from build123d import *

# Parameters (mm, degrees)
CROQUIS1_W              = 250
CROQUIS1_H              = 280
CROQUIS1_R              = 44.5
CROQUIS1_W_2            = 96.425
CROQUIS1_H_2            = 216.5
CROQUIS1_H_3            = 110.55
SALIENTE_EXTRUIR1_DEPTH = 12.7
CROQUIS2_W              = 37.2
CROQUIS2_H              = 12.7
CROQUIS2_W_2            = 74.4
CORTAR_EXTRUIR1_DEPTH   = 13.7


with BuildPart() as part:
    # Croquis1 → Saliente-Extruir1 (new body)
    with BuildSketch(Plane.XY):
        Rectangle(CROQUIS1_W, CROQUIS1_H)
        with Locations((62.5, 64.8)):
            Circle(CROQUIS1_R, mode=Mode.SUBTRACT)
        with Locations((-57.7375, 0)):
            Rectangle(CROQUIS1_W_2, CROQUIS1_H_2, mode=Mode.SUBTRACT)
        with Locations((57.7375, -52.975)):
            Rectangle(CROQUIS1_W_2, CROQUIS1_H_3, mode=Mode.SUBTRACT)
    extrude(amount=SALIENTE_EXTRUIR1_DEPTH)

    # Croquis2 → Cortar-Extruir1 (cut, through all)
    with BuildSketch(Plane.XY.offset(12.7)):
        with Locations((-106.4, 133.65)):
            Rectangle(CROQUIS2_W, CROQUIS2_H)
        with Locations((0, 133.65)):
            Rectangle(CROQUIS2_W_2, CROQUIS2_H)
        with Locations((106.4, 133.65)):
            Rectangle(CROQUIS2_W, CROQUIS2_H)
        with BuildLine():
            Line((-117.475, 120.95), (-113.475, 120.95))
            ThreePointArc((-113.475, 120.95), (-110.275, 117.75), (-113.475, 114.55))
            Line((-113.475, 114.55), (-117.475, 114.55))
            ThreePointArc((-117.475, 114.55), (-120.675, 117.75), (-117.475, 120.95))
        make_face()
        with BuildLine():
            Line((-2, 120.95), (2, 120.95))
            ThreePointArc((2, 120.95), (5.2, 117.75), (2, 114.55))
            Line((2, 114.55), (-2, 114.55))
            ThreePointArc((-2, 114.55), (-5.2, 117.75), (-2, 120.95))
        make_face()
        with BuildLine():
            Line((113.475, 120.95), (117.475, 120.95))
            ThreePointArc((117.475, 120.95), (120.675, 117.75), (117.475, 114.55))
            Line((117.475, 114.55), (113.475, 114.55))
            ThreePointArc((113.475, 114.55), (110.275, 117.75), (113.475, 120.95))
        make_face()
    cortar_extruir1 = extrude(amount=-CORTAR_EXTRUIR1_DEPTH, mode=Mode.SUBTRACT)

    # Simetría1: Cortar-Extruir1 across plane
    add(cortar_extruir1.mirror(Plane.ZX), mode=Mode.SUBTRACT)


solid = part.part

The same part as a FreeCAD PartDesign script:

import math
import FreeCAD as App
import Part
import Sketcher
from FreeCAD import Vector


def add_polygon(sketch, points):
    """Adds a closed chain of lines whose ends are joined by coincident constraints."""
    first, n = sketch.GeometryCount, len(points)
    for a, b in zip(points, points[1:] + points[:1]):
        sketch.addGeometry(Part.LineSegment(App.Vector(*a, 0), App.Vector(*b, 0)), False)
    for i in range(n):
        sketch.addConstraint(Sketcher.Constraint("Coincident", first + i, 2, first + (i + 1) % n, 1))

doc = App.newDocument("Part")
params = doc.addObject("Spreadsheet::Sheet", "Params")
for row, (alias, value) in enumerate([
    ("sketch1_diameter", "89 mm"),
    ("sketch1_width", "250 mm"),
    ("sketch1_height", "280 mm"),
    ("sketch1_height2", "216.5 mm"),
    ("sketch1_height3", "110.55 mm"),
    ("pad1_length", "12.7 mm"),
    ("sketch2_radius", "3.2 mm"),
    ("sketch2_width", "4 mm"),
    ("sketch2_width2", "37.2 mm"),
    ("sketch2_width3", "74.4 mm"),
    ("sketch2_height", "12.7 mm"),
], start=1):
    params.set(f"A{row}", alias)
    params.set(f"B{row}", "=" + value)
    params.setAlias(f"B{row}", alias)

body = doc.addObject("PartDesign::Body", "Body")

sketch1 = body.newObject("Sketcher::SketchObject", "Sketch")
sketch1.AttachmentSupport = (doc.getObject("XY_Plane"), [""])
sketch1.MapMode = "FlatFace"
add_polygon(sketch1, [(-125, 140), (-125, -140), (125, -140), (125, 140)])
add_polygon(sketch1, [(-10, -108), (-106, -108), (-106, 108), (-10, 108)])
add_polygon(sketch1, [(106, -108), (10, -108), (10, 2), (106, 2)])
sketch1.addGeometry(Part.Circle(Vector(62, 65, 0), Vector(0, 0, 1), 44), False)
sketch1.addConstraint([
    Sketcher.Constraint("Vertical", 0),
    Sketcher.Constraint("Horizontal", 1),
    Sketcher.Constraint("Vertical", 2),
    Sketcher.Constraint("Horizontal", 3),
    Sketcher.Constraint("Horizontal", 4),
    Sketcher.Constraint("Vertical", 5),
    Sketcher.Constraint("Horizontal", 6),
    Sketcher.Constraint("Vertical", 7),
    Sketcher.Constraint("Horizontal", 8),
    Sketcher.Constraint("Vertical", 9),
    Sketcher.Constraint("Horizontal", 10),
    Sketcher.Constraint("Vertical", 11),
    Sketcher.Constraint("Symmetric", 0, 2, 2, 2, -1, 1),
    Sketcher.Constraint("Symmetric", 6, 2, 8, 2, -1, 1),
    Sketcher.Constraint("Symmetric", 4, 2, 11, 2, -2),
    Sketcher.Constraint("Diameter", 12, 89.0),
    Sketcher.Constraint("DistanceX", 1, 1, 1, 2, 250.0),
    Sketcher.Constraint("DistanceY", 0, 2, 0, 1, 280.0),
    Sketcher.Constraint("DistanceY", 5, 1, 5, 2, 216.5),
    Sketcher.Constraint("DistanceY", 9, 1, 9, 2, 110.55),
    Sketcher.Constraint("DistanceX", -1, 1, 12, 3, 62.5),
    Sketcher.Constraint("DistanceY", -1, 1, 12, 3, 64.8),
    Sketcher.Constraint("DistanceX", 4, 2, 4, 1, 96.425),
    Sketcher.Constraint("DistanceX", 4, 2, -1, 1, 105.95),
])
sketch1.setExpression("Constraints[27]", "Params.sketch1_diameter")
sketch1.setExpression("Constraints[28]", "Params.sketch1_width")
sketch1.setExpression("Constraints[29]", "Params.sketch1_height")
sketch1.setExpression("Constraints[30]", "Params.sketch1_height2")
sketch1.setExpression("Constraints[31]", "Params.sketch1_height3")
pad1 = body.newObject("PartDesign::Pad", "Pad")
pad1.Profile = sketch1
pad1.setExpression("Length", "Params.pad1_length")

sketch2 = body.newObject("Sketcher::SketchObject", "Sketch001")
sketch2.AttachmentSupport = (doc.getObject("XY_Plane"), [""])
sketch2.MapMode = "FlatFace"
sketch2.AttachmentOffset = App.Placement(Vector(0, 0, 12.7), App.Rotation())
add_polygon(sketch2, [(-125, 140), (-125, 127.3), (-87.8, 127.3), (-87.8, 140)])
add_polygon(sketch2, [(-37.2, 140), (-37.2, 127.3), (37.2, 127.3), (37.2, 140)])
add_polygon(sketch2, [(87.8, 140), (87.8, 127.3), (125, 127.3), (125, 140)])
sketch2.addGeometry(Part.LineSegment(Vector(-113.5, 121, 0), Vector(-117.5, 121, 0)), False)
sketch2.addGeometry(Part.ArcOfCircle(Part.Circle(Vector(-117.5, 117.8, 0), Vector(0, 0, 1), 3.2), math.radians(90), math.radians(270)), False)
sketch2.addGeometry(Part.LineSegment(Vector(-117.5, 114.5, 0), Vector(-113.5, 114.5, 0)), False)
sketch2.addGeometry(Part.ArcOfCircle(Part.Circle(Vector(-113.5, 117.8, 0), Vector(0, 0, 1), 3.2), math.radians(-90), math.radians(90)), False)
sketch2.addGeometry(Part.LineSegment(Vector(2, 121, 0), Vector(-2, 121, 0)), False)
sketch2.addGeometry(Part.ArcOfCircle(Part.Circle(Vector(-2, 117.8, 0), Vector(0, 0, 1), 3.2), math.radians(90), math.radians(270)), False)
sketch2.addGeometry(Part.LineSegment(Vector(-2, 114.5, 0), Vector(2, 114.5, 0)), False)
sketch2.addGeometry(Part.ArcOfCircle(Part.Circle(Vector(2, 117.8, 0), Vector(0, 0, 1), 3.2), math.radians(-90), math.radians(90)), False)
sketch2.addGeometry(Part.LineSegment(Vector(117.5, 121, 0), Vector(113.5, 121, 0)), False)
sketch2.addGeometry(Part.ArcOfCircle(Part.Circle(Vector(113.5, 117.8, 0), Vector(0, 0, 1), 3.2), math.radians(90), math.radians(270)), False)
sketch2.addGeometry(Part.LineSegment(Vector(113.5, 114.5, 0), Vector(117.5, 114.5, 0)), False)
sketch2.addGeometry(Part.ArcOfCircle(Part.Circle(Vector(117.5, 117.8, 0), Vector(0, 0, 1), 3.2), math.radians(-90), math.radians(90)), False)
sketch2.addConstraint([
    Sketcher.Constraint("Tangent", 12, 2, 13, 1),
    Sketcher.Constraint("Tangent", 13, 2, 14, 1),
    Sketcher.Constraint("Tangent", 14, 2, 15, 1),
    Sketcher.Constraint("Tangent", 15, 2, 12, 1),
    Sketcher.Constraint("Tangent", 16, 2, 17, 1),
    Sketcher.Constraint("Tangent", 17, 2, 18, 1),
    Sketcher.Constraint("Tangent", 18, 2, 19, 1),
    Sketcher.Constraint("Tangent", 19, 2, 16, 1),
    Sketcher.Constraint("Tangent", 20, 2, 21, 1),
    Sketcher.Constraint("Tangent", 21, 2, 22, 1),
    Sketcher.Constraint("Tangent", 22, 2, 23, 1),
    Sketcher.Constraint("Tangent", 23, 2, 20, 1),
    Sketcher.Constraint("Vertical", 0),
    Sketcher.Constraint("Horizontal", 1),
    Sketcher.Constraint("Vertical", 2),
    Sketcher.Constraint("Horizontal", 3),
    Sketcher.Constraint("Vertical", 4),
    Sketcher.Constraint("Horizontal", 5),
    Sketcher.Constraint("Vertical", 6),
    Sketcher.Constraint("Horizontal", 7),
    Sketcher.Constraint("Vertical", 8),
    Sketcher.Constraint("Horizontal", 9),
    Sketcher.Constraint("Vertical", 10),
    Sketcher.Constraint("Horizontal", 11),
    Sketcher.Constraint("Horizontal", 12),
    Sketcher.Constraint("Horizontal", 14),
    Sketcher.Constraint("Horizontal", 16),
    Sketcher.Constraint("Horizontal", 18),
    Sketcher.Constraint("Horizontal", 20),
    Sketcher.Constraint("Horizontal", 22),
    Sketcher.Constraint("Equal", 15, 17),
    Sketcher.Constraint("Equal", 19, 21),
    Sketcher.Constraint("Symmetric", 15, 3, 21, 3, -2),
    Sketcher.Constraint("Symmetric", 1, 2, 8, 2, -2),
    Sketcher.Constraint("Symmetric", 3, 2, 10, 2, -2),
    Sketcher.Constraint("Horizontal", 15, 3, 17, 3),
    Sketcher.Constraint("Horizontal", 1, 2, 4, 2),
    Sketcher.Constraint("Horizontal", 3, 2, 6, 2),
    Sketcher.Constraint("Equal", 14, 16),
    Sketcher.Constraint("Equal", 18, 20),
    Sketcher.Constraint("Radius", 13, 3.2),
    Sketcher.Constraint("DistanceX", 12, 2, 12, 1, 4.0),
    Sketcher.Constraint("DistanceX", 1, 1, 1, 2, 37.2),
    Sketcher.Constraint("DistanceX", 5, 1, 5, 2, 74.4),
    Sketcher.Constraint("DistanceY", 0, 2, 0, 1, 12.7),
    Sketcher.Constraint("DistanceX", 17, 3, -1, 1, 2.0),
    Sketcher.Constraint("DistanceX", 0, 2, -1, 1, 125.0),
    Sketcher.Constraint("DistanceY", -1, 1, 2, 2, 140.0),
    Sketcher.Constraint("DistanceX", 4, 2, -1, 1, 37.2),
    Sketcher.Constraint("DistanceY", -1, 1, 13, 3, 117.75),
    Sketcher.Constraint("DistanceX", 15, 3, 21, 3, 226.95),
])
sketch2.setExpression("Constraints[52]", "Params.sketch2_radius")
sketch2.setExpression("Constraints[53]", "Params.sketch2_width")
sketch2.setExpression("Constraints[54]", "Params.sketch2_width2")
sketch2.setExpression("Constraints[55]", "Params.sketch2_width3")
sketch2.setExpression("Constraints[56]", "Params.sketch2_height")
pocket1 = body.newObject("PartDesign::Pocket", "Pocket")
pocket1.Profile = sketch2
pocket1.Type = "ThroughAll"
doc.recompute()

mirrored = body.newObject("PartDesign::Mirrored", "Mirrored")
mirrored.Originals = [pocket1]
mirrored.MirrorPlane = (doc.getObject("XZ_Plane"), [""])
body.Tip = mirrored

doc.recompute()
